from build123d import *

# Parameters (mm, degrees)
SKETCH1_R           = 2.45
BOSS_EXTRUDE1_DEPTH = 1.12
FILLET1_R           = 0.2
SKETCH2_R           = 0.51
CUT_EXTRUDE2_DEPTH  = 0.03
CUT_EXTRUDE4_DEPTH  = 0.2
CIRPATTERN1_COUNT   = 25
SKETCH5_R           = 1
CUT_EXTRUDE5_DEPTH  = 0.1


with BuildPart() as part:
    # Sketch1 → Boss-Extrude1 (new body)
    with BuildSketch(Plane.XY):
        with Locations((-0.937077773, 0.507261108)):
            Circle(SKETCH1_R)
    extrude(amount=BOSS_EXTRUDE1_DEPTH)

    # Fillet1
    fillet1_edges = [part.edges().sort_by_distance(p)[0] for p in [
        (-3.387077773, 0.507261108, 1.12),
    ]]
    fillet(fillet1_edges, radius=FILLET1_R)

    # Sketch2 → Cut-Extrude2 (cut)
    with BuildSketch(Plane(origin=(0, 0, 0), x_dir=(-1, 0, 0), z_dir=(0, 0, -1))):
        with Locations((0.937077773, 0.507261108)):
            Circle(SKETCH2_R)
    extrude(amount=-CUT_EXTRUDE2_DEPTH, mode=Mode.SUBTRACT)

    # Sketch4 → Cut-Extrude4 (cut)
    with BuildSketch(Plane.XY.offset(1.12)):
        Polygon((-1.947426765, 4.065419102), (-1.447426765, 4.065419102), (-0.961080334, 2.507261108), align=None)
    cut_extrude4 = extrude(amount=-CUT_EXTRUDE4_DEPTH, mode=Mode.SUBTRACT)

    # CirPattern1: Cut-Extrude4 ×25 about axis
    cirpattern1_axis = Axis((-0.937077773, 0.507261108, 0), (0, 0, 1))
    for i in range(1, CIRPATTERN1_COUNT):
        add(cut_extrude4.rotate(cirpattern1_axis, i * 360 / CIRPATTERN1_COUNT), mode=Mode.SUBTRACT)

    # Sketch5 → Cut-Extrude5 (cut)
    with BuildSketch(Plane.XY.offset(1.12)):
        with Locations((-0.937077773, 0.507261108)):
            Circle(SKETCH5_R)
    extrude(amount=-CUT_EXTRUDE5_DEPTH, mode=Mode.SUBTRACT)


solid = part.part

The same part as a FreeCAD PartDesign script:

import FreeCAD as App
import Part
import Sketcher
from FreeCAD import Vector


def edges_at(feature, points):
    """Names of the edges that pass closest to the given points."""
    edges = feature.Shape.Edges
    near = lambda p: min(range(len(edges)), key=lambda i: edges[i].distToShape(Part.Vertex(*p))[0])
    return sorted({f"Edge{near(p) + 1}" for p in points})

doc = App.newDocument("Part")
body = doc.addObject("PartDesign::Body", "Body")

# Sketch on XY plane
sketch1 = body.newObject("Sketcher::SketchObject", "Sketch")
sketch1.AttachmentSupport = (doc.getObject("XY_Plane"), [""])
sketch1.MapMode = "FlatFace"
sketch1.addGeometry(Part.Circle(Vector(-0.9, 0.5, 0), Vector(0, 0, 1), 2.5), False)
sketch1.addConstraint(Sketcher.Constraint("Diameter", 0, 4.9))
sketch1.addConstraint(Sketcher.Constraint("DistanceY", -1, 1, 0, 3, 0.507261))
sketch1.addConstraint(Sketcher.Constraint("DistanceX", 0, 3, -1, 1, 0.937078))
pad1 = body.newObject("PartDesign::Pad", "Pad")
pad1.Profile = sketch1
pad1.Length = 1.12
doc.recompute()

fillet = body.newObject("PartDesign::Fillet", "Fillet")
fillet.Base = (pad1, edges_at(pad1, [(-3.387, 0.507, 1.12)]))
fillet.Radius = 0.2

# Sketch on XY plane
sketch2 = body.newObject("Sketcher::SketchObject", "Sketch001")
sketch2.AttachmentSupport = (doc.getObject("XY_Plane"), [""])
sketch2.MapMode = "FlatFace"
sketch2.addGeometry(Part.Circle(Vector(-0.9, 0.5, 0), Vector(0, 0, 1), 0.5), False)
sketch2.addConstraint(Sketcher.Constraint("Diameter", 0, 1.02))
sketch2.addConstraint(Sketcher.Constraint("DistanceY", -1, 1, 0, 3, 0.507261))
sketch2.addConstraint(Sketcher.Constraint("DistanceX", 0, 3, -1, 1, 0.937078))
pocket1 = body.newObject("PartDesign::Pocket", "Pocket")
pocket1.Profile = sketch2
pocket1.Length = 0.03
pocket1.Reversed = True

# Sketch on XY plane
sketch3 = body.newObject("Sketcher::SketchObject", "Sketch002")
sketch3.AttachmentSupport = (doc.getObject("XY_Plane"), [""])
sketch3.MapMode = "FlatFace"
sketch3.AttachmentOffset = App.Placement(Vector(0, 0, 1.12), App.Rotation())
sketch3.addGeometry(Part.LineSegment(Vector(-1.4, 4.1, 0), Vector(-1.9, 4.1, 0)), False)
sketch3.addGeometry(Part.LineSegment(Vector(-1.9, 4.1, 0), Vector(-1, 2.5, 0)), False)
sketch3.addGeometry(Part.LineSegment(Vector(-1, 2.5, 0), Vector(-1.4, 4.1, 0)), False)
sketch3.addConstraint(Sketcher.Constraint("Coincident", 0, 2, 1, 1))
sketch3.addConstraint(Sketcher.Constraint("Coincident", 1, 2, 2, 1))
sketch3.addConstraint(Sketcher.Constraint("Coincident", 2, 2, 0, 1))
sketch3.addConstraint(Sketcher.Constraint("Horizontal", 0))
sketch3.addConstraint(Sketcher.Constraint("DistanceX", 0, 2, 0, 1, 0.5))
sketch3.addConstraint(Sketcher.Constraint("Distance", 1, 1.844108))
sketch3.addConstraint(Sketcher.Constraint("DistanceY", -1, 1, 0, 2, 4.065419))
sketch3.addConstraint(Sketcher.Constraint("DistanceX", 1, 2, -1, 1, 0.96108))
sketch3.addConstraint(Sketcher.Constraint("DistanceY", -1, 1, 1, 2, 2.507261))
pocket2 = body.newObject("PartDesign::Pocket", "Pocket001")
pocket2.Profile = sketch3
pocket2.Length = 0.2
doc.recompute()

datumline = body.newObject("PartDesign::Line", "DatumLine")
datumline.Placement = App.Placement(Vector(-0.937078, 0.507261, 0), App.Rotation(Vector(0, 0, 1), Vector(0, 0, 1)))
polarpattern = body.newObject("PartDesign::PolarPattern", "PolarPattern")
polarpattern.Originals = [pocket2]
polarpattern.Axis = (datumline, [""])
polarpattern.Angle = 360
polarpattern.Occurrences = 25
body.Tip = polarpattern

# Sketch on XY plane
sketch4 = body.newObject("Sketcher::SketchObject", "Sketch003")
sketch4.AttachmentSupport = (doc.getObject("XY_Plane"), [""])
sketch4.MapMode = "FlatFace"
sketch4.AttachmentOffset = App.Placement(Vector(0, 0, 1.12), App.Rotation())
sketch4.addGeometry(Part.Circle(Vector(-0.9, 0.5, 0), Vector(0, 0, 1), 1), False)
sketch4.addConstraint(Sketcher.Constraint("Diameter", 0, 2.0))
sketch4.addConstraint(Sketcher.Constraint("DistanceY", -1, 1, 0, 3, 0.507261))
sketch4.addConstraint(Sketcher.Constraint("DistanceX", 0, 3, -1, 1, 0.937078))
pocket3 = body.newObject("PartDesign::Pocket", "Pocket002")
pocket3.Profile = sketch4
pocket3.Length = 0.1

doc.recompute()
